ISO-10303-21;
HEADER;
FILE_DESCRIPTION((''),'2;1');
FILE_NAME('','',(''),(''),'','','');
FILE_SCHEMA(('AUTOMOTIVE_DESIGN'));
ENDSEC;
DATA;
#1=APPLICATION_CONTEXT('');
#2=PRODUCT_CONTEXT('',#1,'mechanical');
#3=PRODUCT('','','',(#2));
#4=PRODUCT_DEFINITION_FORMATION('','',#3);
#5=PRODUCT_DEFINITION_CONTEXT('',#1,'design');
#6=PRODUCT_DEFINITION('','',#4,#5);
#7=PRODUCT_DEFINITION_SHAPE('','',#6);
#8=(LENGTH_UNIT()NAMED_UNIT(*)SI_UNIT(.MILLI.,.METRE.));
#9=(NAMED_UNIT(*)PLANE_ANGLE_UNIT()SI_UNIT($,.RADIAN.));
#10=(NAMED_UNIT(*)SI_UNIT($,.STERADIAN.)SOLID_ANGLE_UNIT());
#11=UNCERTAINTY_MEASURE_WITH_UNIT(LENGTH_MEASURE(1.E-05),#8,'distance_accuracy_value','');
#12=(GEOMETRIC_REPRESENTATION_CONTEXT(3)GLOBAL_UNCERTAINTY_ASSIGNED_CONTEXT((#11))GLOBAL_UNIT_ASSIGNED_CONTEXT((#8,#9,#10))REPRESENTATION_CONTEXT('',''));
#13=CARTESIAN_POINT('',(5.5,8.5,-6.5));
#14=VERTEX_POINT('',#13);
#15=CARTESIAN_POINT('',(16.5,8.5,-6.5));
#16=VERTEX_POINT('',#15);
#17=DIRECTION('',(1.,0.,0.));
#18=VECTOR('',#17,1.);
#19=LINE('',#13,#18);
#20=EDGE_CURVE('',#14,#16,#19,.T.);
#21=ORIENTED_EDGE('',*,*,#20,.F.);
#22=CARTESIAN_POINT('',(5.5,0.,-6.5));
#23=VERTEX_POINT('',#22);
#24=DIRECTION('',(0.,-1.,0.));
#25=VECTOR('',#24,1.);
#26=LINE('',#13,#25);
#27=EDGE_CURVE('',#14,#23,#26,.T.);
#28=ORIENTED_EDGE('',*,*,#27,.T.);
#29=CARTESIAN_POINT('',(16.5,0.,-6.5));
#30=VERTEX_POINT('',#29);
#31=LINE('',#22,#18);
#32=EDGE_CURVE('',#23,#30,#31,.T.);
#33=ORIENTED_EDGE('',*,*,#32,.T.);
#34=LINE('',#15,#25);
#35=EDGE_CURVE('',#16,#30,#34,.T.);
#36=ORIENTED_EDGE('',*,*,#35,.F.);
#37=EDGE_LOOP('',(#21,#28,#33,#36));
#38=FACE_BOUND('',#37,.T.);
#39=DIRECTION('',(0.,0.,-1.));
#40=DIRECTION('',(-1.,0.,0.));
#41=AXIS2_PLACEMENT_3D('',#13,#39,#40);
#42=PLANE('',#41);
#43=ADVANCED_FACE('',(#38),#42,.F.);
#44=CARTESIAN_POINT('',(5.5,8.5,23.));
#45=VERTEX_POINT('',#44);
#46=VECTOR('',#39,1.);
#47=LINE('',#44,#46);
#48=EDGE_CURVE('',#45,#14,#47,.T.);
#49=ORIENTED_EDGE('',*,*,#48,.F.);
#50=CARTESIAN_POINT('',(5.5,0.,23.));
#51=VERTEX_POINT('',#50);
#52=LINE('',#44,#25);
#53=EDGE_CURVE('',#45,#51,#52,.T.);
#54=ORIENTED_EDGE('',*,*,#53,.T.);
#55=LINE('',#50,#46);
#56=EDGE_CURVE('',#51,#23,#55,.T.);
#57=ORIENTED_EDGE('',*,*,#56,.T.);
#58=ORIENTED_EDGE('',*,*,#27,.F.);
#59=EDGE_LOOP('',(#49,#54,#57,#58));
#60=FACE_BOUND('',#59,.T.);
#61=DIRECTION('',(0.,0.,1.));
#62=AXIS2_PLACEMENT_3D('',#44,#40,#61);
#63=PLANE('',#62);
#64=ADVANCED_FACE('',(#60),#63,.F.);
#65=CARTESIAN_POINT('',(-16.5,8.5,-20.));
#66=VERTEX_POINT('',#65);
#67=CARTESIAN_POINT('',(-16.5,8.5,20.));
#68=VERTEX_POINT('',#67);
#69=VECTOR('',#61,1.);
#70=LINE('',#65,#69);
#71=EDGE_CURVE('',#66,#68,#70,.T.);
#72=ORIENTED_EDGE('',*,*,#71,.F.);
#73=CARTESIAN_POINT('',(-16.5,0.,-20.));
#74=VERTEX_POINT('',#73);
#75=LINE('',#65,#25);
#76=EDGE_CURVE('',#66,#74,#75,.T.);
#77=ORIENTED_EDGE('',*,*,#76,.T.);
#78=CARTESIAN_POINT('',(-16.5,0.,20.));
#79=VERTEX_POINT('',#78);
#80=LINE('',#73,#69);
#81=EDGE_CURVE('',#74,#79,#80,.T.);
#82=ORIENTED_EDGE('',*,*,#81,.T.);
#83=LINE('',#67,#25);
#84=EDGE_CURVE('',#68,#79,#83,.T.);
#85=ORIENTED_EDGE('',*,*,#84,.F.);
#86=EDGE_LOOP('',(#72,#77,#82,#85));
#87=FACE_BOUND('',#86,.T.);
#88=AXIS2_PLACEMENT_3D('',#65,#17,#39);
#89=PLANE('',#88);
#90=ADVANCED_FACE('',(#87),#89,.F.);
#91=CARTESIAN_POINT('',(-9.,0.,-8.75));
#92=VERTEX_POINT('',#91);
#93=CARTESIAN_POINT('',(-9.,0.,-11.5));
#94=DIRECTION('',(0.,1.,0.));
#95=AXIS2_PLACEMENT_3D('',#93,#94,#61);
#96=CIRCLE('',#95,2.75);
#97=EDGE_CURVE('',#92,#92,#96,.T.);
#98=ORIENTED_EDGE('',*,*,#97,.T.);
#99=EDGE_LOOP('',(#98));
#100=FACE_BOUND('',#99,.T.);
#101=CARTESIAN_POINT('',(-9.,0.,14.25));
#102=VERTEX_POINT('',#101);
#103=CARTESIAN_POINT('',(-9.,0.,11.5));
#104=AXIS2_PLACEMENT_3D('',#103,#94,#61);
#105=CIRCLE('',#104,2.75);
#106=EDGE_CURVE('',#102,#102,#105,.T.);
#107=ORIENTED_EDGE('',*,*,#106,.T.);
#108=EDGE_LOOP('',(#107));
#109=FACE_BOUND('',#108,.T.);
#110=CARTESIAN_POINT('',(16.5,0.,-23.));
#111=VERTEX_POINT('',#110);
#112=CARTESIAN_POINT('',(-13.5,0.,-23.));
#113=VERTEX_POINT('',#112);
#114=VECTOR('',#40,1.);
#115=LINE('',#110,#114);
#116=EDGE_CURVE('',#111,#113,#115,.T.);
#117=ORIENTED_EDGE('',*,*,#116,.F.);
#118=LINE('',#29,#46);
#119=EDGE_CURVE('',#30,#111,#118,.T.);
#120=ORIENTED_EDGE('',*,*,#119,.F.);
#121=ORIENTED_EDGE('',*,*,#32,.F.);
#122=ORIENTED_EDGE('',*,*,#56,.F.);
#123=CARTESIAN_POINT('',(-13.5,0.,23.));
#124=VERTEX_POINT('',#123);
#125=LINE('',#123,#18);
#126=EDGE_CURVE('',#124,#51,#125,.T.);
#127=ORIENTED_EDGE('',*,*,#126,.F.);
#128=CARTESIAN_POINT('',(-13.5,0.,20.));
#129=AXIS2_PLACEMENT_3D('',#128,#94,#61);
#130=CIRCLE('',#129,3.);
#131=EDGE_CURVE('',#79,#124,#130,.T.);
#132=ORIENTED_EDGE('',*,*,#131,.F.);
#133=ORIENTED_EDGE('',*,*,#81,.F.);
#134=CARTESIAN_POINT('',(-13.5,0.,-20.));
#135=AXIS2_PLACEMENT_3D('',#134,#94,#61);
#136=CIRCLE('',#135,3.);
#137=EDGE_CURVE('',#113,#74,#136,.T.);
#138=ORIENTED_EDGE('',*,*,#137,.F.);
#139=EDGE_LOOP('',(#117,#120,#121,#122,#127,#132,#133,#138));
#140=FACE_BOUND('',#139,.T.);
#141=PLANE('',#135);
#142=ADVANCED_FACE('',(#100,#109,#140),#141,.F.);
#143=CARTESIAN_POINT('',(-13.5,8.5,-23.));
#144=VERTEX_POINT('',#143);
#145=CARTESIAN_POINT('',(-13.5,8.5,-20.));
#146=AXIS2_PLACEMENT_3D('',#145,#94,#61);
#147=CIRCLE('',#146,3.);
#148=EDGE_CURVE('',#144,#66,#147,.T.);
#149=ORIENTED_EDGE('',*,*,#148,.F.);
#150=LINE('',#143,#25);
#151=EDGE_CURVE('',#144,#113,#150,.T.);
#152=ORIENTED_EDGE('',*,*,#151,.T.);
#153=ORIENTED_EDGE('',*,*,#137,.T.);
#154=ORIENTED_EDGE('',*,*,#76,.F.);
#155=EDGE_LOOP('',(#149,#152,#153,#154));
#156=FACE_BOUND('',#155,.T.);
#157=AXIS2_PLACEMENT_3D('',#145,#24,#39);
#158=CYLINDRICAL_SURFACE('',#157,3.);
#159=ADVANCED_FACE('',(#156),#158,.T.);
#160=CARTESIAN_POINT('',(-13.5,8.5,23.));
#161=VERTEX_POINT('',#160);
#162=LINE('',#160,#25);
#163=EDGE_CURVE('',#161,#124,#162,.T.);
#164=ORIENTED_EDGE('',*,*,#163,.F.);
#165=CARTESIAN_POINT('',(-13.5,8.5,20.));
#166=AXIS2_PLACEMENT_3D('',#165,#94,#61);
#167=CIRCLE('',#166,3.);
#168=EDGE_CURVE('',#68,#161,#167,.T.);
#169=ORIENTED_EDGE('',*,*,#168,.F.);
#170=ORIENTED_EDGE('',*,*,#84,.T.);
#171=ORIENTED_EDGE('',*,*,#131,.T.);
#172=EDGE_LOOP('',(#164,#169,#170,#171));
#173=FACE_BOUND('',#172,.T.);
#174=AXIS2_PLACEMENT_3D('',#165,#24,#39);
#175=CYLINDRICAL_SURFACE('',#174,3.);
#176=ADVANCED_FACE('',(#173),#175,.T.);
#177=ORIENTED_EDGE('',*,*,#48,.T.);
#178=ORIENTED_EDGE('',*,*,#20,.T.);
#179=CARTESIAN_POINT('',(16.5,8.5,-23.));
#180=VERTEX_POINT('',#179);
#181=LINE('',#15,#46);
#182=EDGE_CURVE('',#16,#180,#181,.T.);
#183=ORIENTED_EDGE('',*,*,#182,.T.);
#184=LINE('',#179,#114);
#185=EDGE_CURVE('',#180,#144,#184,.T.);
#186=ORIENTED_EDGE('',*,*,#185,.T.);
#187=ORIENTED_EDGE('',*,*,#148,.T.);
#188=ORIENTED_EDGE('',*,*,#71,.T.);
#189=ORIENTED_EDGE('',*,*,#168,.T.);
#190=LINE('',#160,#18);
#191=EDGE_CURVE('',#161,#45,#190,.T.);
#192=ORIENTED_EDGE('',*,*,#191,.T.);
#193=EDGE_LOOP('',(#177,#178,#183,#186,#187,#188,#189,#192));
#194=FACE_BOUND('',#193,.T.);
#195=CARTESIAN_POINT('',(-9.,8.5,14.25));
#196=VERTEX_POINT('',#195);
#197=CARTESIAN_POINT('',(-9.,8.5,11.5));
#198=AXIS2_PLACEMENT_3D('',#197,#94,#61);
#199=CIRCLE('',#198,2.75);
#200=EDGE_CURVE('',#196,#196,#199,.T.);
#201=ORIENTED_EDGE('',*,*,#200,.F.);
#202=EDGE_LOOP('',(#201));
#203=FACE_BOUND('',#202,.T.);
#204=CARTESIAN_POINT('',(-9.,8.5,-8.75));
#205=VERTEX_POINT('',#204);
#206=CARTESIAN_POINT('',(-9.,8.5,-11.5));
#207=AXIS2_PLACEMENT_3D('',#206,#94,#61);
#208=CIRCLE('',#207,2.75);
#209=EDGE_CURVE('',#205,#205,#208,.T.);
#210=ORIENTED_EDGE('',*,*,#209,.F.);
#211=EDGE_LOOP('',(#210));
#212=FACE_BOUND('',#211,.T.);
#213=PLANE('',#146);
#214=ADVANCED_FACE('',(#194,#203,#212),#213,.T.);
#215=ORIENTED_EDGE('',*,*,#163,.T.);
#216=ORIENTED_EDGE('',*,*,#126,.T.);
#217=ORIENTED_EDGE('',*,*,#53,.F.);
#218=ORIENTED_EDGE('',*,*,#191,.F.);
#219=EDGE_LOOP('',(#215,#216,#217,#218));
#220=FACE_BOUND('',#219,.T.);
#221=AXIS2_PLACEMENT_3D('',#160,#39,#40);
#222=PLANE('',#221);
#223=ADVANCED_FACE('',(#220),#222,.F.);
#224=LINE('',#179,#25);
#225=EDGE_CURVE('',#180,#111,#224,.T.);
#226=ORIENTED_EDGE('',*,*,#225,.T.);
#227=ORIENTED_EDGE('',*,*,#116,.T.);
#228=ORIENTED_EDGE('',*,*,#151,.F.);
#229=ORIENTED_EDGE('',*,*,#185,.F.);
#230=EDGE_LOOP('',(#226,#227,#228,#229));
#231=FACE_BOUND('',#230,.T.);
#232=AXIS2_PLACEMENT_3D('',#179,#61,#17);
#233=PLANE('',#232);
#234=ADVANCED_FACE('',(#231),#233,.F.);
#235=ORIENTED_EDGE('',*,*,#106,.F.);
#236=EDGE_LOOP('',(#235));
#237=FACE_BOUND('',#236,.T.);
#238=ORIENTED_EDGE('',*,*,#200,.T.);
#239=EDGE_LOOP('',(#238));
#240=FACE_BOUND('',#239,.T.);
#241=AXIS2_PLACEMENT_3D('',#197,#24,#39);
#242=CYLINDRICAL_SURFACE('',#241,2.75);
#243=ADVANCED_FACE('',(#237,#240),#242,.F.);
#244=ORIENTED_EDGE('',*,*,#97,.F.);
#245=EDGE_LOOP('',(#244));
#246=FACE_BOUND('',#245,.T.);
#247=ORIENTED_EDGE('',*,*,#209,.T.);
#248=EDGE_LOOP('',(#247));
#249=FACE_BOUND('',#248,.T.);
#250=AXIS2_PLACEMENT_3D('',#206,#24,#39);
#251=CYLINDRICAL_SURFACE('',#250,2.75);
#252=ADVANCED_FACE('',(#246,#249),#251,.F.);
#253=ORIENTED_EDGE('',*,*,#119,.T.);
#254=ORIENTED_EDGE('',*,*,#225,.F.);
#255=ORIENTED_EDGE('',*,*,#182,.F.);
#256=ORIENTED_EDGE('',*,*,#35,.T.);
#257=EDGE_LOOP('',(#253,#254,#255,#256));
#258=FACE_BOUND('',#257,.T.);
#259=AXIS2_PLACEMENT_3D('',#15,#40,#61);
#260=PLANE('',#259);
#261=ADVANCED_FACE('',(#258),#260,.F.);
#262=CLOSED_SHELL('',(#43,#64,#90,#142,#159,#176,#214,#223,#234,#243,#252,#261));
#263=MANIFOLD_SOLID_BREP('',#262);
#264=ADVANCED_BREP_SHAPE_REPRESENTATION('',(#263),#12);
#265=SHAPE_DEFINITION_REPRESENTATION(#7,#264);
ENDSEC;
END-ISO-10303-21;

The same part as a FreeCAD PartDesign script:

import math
import FreeCAD as App
import Part
import Sketcher

doc = App.newDocument("Part")
params = doc.addObject("Spreadsheet::Sheet", "Params")
for row, (alias, value) in enumerate([
    ("sketch1_radius", "3 mm"),
    ("sketch1_diameter", "5.5 mm"),
    ("sketch1_width", "19 mm"),
    ("sketch1_width2", "11 mm"),
    ("sketch1_height", "40 mm"),
    ("pad1_length", "8.5 mm"),
], start=1):
    params.set(f"A{row}", alias)
    params.set(f"B{row}", "=" + value)
    params.setAlias(f"B{row}", alias)

body = doc.addObject("PartDesign::Body", "Body")

# Sketch on XZ plane
sketch1 = doc.addObject("Sketcher::SketchObject", "Sketch")
body.addObject(sketch1)
sketch1.AttachmentSupport = (doc.XZ_Plane, [""])
sketch1.MapMode = "FlatFace"
sketch1.addGeometry([
    Part.LineSegment(App.Vector(-16.5, -20, 0), App.Vector(-16.5, 20, 0)),  # 0
    Part.ArcOfCircle(Part.Circle(App.Vector(-13.5, 20, 0), App.Vector(0, 0, 1), 3), math.radians(90), math.radians(180)),  # 1
    Part.LineSegment(App.Vector(-13.5, 23, 0), App.Vector(5.5, 23, 0)),  # 2
    Part.LineSegment(App.Vector(5.5, 23, 0), App.Vector(5.5, -6.5, 0)),  # 3
    Part.LineSegment(App.Vector(5.5, -6.5, 0), App.Vector(16.5, -6.5, 0)),  # 4
    Part.LineSegment(App.Vector(16.5, -6.5, 0), App.Vector(16.5, -23, 0)),  # 5
    Part.LineSegment(App.Vector(16.5, -23, 0), App.Vector(-13.5, -23, 0)),  # 6
    Part.ArcOfCircle(Part.Circle(App.Vector(-13.5, -20, 0), App.Vector(0, 0, 1), 3), math.radians(180), math.radians(270)),  # 7
    Part.Circle(App.Vector(-9, 11.5, 0), App.Vector(0, 0, 1), 2.8),  # 8
    Part.Circle(App.Vector(-9, -11.5, 0), App.Vector(0, 0, 1), 2.8),  # 9
], False)
sketch1.addConstraint([
    Sketcher.Constraint("Tangent", 0, 2, 1, 2),
    Sketcher.Constraint("Tangent", 1, 1, 2, 1),
    Sketcher.Constraint("Coincident", 2, 2, 3, 1),
    Sketcher.Constraint("Coincident", 3, 2, 4, 1),
    Sketcher.Constraint("Coincident", 4, 2, 5, 1),
    Sketcher.Constraint("Coincident", 5, 2, 6, 1),
    Sketcher.Constraint("Tangent", 6, 2, 7, 2),
    Sketcher.Constraint("Tangent", 7, 1, 0, 1),
    Sketcher.Constraint("Vertical", 0),
    Sketcher.Constraint("Horizontal", 2),
    Sketcher.Constraint("Vertical", 3),
    Sketcher.Constraint("Horizontal", 4),
    Sketcher.Constraint("Vertical", 5),
    Sketcher.Constraint("Horizontal", 6),
    Sketcher.Constraint("Equal", 1, 7),
    Sketcher.Constraint("Equal", 8, 9),
    Sketcher.Constraint("Symmetric", 8, 3, 9, 3, -1),
    Sketcher.Constraint("Radius", 1, 3.0),
    Sketcher.Constraint("Diameter", 8, 5.5),
    Sketcher.Constraint("DistanceX", 2, 1, 2, 2, 19.0),
    Sketcher.Constraint("DistanceX", 4, 1, 4, 2, 11.0),
    Sketcher.Constraint("DistanceY", 0, 1, 0, 2, 40.0),
    Sketcher.Constraint("DistanceY", 3, 2, 3, 1, 29.5),
    Sketcher.Constraint("DistanceY", -1, 1, 1, 3, 20.0),
    Sketcher.Constraint("DistanceX", 8, 3, -1, 1, 9.0),
    Sketcher.Constraint("DistanceY", 9, 3, 8, 3, 23.0),
    Sketcher.Constraint("DistanceX", 1, 3, -1, 1, 13.5),
])
sketch1.setExpression("Constraints[17]", "Params.sketch1_radius")
sketch1.setExpression("Constraints[18]", "Params.sketch1_diameter")
sketch1.setExpression("Constraints[19]", "Params.sketch1_width")
sketch1.setExpression("Constraints[20]", "Params.sketch1_width2")
sketch1.setExpression("Constraints[21]", "Params.sketch1_height")
pad1 = doc.addObject("PartDesign::Pad", "Pad")
body.addObject(pad1)
pad1.Profile = sketch1
pad1.setExpression("Length", "Params.pad1_length")
pad1.Reversed = True

doc.recompute()
